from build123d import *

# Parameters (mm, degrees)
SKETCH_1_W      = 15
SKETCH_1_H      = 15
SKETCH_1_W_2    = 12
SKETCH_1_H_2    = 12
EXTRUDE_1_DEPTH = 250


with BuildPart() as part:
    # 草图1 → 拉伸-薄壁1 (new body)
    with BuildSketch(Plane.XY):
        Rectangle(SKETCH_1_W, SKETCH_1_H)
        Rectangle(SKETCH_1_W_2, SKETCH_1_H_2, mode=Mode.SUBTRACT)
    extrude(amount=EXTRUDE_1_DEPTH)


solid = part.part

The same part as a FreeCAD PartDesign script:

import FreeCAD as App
import Part
import Sketcher
from FreeCAD import Vector
Q = App.Units.Quantity

doc = App.newDocument("Part")
body = doc.addObject("PartDesign::Body", "Body")

# Sketch on XY plane
sketch1 = body.newObject("Sketcher::SketchObject", "Sketch")
sketch1.AttachmentSupport = (doc.getObject("XY_Plane"), [""])
sketch1.MapMode = "FlatFace"
sketch1.addGeometry([
    Part.LineSegment(Vector(-7.5, 7.5, 0), Vector(-7.5, -7.5, 0)),  # 0
    Part.LineSegment(Vector(-7.5, -7.5, 0), Vector(7.5, -7.5, 0)),  # 1
    Part.LineSegment(Vector(7.5, -7.5, 0), Vector(7.5, 7.5, 0)),  # 2
    Part.LineSegment(Vector(7.5, 7.5, 0), Vector(-7.5, 7.5, 0)),  # 3
    Part.LineSegment(Vector(6, -6, 0), Vector(-6, -6, 0)),  # 4
    Part.LineSegment(Vector(-6, -6, 0), Vector(-6, 6, 0)),  # 5
    Part.LineSegment(Vector(-6, 6, 0), Vector(6, 6, 0)),  # 6
    Part.LineSegment(Vector(6, 6, 0), Vector(6, -6, 0)),  # 7
], False)
sketch1.addConstraint([
    Sketcher.Constraint("Coincident", 0, 2, 1, 1),
    Sketcher.Constraint("Coincident", 1, 2, 2, 1),
    Sketcher.Constraint("Coincident", 2, 2, 3, 1),
    Sketcher.Constraint("Coincident", 3, 2, 0, 1),
    Sketcher.Constraint("Coincident", 4, 2, 5, 1),
    Sketcher.Constraint("Coincident", 5, 2, 6, 1),
    Sketcher.Constraint("Coincident", 6, 2, 7, 1),
    Sketcher.Constraint("Coincident", 7, 2, 4, 1),
    Sketcher.Constraint("Vertical", 0),
    Sketcher.Constraint("Horizontal", 1),
    Sketcher.Constraint("Vertical", 2),
    Sketcher.Constraint("Horizontal", 3),
    Sketcher.Constraint("Horizontal", 4),
    Sketcher.Constraint("Vertical", 5),
    Sketcher.Constraint("Horizontal", 6),
    Sketcher.Constraint("Vertical", 7),
    Sketcher.Constraint("Symmetric", 0, 2, 2, 2, -1, 1),
    Sketcher.Constraint("Symmetric", 4, 2, 6, 2, -1, 1),
    Sketcher.Constraint("Equal", 3, 0),
    Sketcher.Constraint("Equal", 6, 5),
    Sketcher.Constraint("DistanceX", 1, 1, 1, 2, Q("15 mm")),
    Sketcher.Constraint("DistanceX", 4, 2, 4, 1, Q("12 mm")),
])
pad1 = body.newObject("PartDesign::Pad", "Pad")
pad1.Profile = sketch1
pad1.Length = 250

doc.recompute()
